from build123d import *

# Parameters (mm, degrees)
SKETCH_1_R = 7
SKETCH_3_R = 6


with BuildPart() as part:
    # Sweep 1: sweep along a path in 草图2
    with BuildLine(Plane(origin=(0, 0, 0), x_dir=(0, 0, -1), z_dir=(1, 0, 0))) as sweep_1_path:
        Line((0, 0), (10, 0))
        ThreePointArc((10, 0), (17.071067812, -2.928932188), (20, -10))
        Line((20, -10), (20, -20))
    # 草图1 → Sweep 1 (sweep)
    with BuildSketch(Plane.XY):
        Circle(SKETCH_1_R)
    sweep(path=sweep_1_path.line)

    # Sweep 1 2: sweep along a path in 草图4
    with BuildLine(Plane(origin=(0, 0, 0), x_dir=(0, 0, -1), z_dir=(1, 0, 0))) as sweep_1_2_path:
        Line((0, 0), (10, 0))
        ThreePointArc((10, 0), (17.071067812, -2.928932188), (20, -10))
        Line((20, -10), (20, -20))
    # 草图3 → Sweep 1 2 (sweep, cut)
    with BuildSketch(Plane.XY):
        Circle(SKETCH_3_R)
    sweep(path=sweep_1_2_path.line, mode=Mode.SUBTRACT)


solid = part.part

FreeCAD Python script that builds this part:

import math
import FreeCAD as App
import Part
import Sketcher

doc = App.newDocument("Part")
params = doc.addObject("Spreadsheet::Sheet", "Params")
for row, (alias, value) in enumerate([
    ("sketch1_diameter", "14 mm"),
    ("sketch2_radius", "10 mm"),
    ("sketch2_width", "10 mm"),
    ("sketch3_diameter", "12 mm"),
    ("sketch4_radius", "10 mm"),
    ("sketch4_width", "10 mm"),
], start=1):
    params.set(f"A{row}", alias)
    params.set(f"B{row}", "=" + value)
    params.setAlias(f"B{row}", alias)

body = doc.addObject("PartDesign::Body", "Body")

# Sketch on XY plane
sketch1 = doc.addObject("Sketcher::SketchObject", "Sketch")
body.addObject(sketch1)
sketch1.AttachmentSupport = (doc.XY_Plane, [""])
sketch1.MapMode = "FlatFace"
sketch1.addGeometry(Part.Circle(App.Vector(0, 0, 0), App.Vector(0, 0, 1), 7), False)
sketch1.addConstraint(Sketcher.Constraint("Coincident", 0, 3, -1, 1))
sketch1.addConstraint(Sketcher.Constraint("Diameter", 0, 14.0))
sketch1.setExpression("Constraints[1]", "Params.sketch1_diameter")

# Sketch on YZ plane
sketch2 = doc.addObject("Sketcher::SketchObject", "Sketch001")
body.addObject(sketch2)
sketch2.AttachmentSupport = (doc.YZ_Plane, [""])
sketch2.MapMode = "FlatFace"
sketch2.addGeometry(Part.LineSegment(App.Vector(0, 0, 0), App.Vector(0, -10, 0)), False)
sketch2.addGeometry(Part.ArcOfCircle(Part.Circle(App.Vector(-10, -10, 0), App.Vector(0, 0, 1), 10), math.radians(-90), math.radians(0)), False)
sketch2.addGeometry(Part.LineSegment(App.Vector(-10, -20, 0), App.Vector(-20, -20, 0)), False)
sketch2.addConstraint(Sketcher.Constraint("Tangent", 0, 2, 1, 2))
sketch2.addConstraint(Sketcher.Constraint("Tangent", 1, 1, 2, 1))
sketch2.addConstraint(Sketcher.Constraint("Vertical", 0))
sketch2.addConstraint(Sketcher.Constraint("Horizontal", 2))
sketch2.addConstraint(Sketcher.Constraint("Coincident", 0, 1, -1, 1))
sketch2.addConstraint(Sketcher.Constraint("Equal", 2, 0))
sketch2.addConstraint(Sketcher.Constraint("Radius", 1, 10.0))
sketch2.addConstraint(Sketcher.Constraint("DistanceX", 2, 2, 2, 1, 10.0))
sketch2.setExpression("Constraints[6]", "Params.sketch2_radius")
sketch2.setExpression("Constraints[7]", "Params.sketch2_width")
doc.recompute()

additivepipe = doc.addObject("PartDesign::AdditivePipe", "AdditivePipe")
body.addObject(additivepipe)
additivepipe.Profile = sketch1
additivepipe.Spine = (sketch2, ["Edge1", "Edge2", "Edge3"])

# Sketch on XY plane
sketch3 = doc.addObject("Sketcher::SketchObject", "Sketch002")
body.addObject(sketch3)
sketch3.AttachmentSupport = (doc.XY_Plane, [""])
sketch3.MapMode = "FlatFace"
sketch3.addGeometry(Part.Circle(App.Vector(0, 0, 0), App.Vector(0, 0, 1), 6), False)
sketch3.addConstraint(Sketcher.Constraint("Coincident", 0, 3, -1, 1))
sketch3.addConstraint(Sketcher.Constraint("Diameter", 0, 12.0))
sketch3.setExpression("Constraints[1]", "Params.sketch3_diameter")

# Sketch on YZ plane
sketch4 = doc.addObject("Sketcher::SketchObject", "Sketch003")
body.addObject(sketch4)
sketch4.AttachmentSupport = (doc.YZ_Plane, [""])
sketch4.MapMode = "FlatFace"
sketch4.addGeometry(Part.LineSegment(App.Vector(0, 0, 0), App.Vector(0, -10, 0)), False)
sketch4.addGeometry(Part.ArcOfCircle(Part.Circle(App.Vector(-10, -10, 0), App.Vector(0, 0, 1), 10), math.radians(-90), math.radians(0)), False)
sketch4.addGeometry(Part.LineSegment(App.Vector(-10, -20, 0), App.Vector(-20, -20, 0)), False)
sketch4.addConstraint(Sketcher.Constraint("Tangent", 0, 2, 1, 2))
sketch4.addConstraint(Sketcher.Constraint("Tangent", 1, 1, 2, 1))
sketch4.addConstraint(Sketcher.Constraint("Vertical", 0))
sketch4.addConstraint(Sketcher.Constraint("Horizontal", 2))
sketch4.addConstraint(Sketcher.Constraint("Coincident", 0, 1, -1, 1))
sketch4.addConstraint(Sketcher.Constraint("Equal", 2, 0))
sketch4.addConstraint(Sketcher.Constraint("Radius", 1, 10.0))
sketch4.addConstraint(Sketcher.Constraint("DistanceX", 2, 2, 2, 1, 10.0))
sketch4.setExpression("Constraints[6]", "Params.sketch4_radius")
sketch4.setExpression("Constraints[7]", "Params.sketch4_width")
doc.recompute()

subtractivepipe = doc.addObject("PartDesign::SubtractivePipe", "SubtractivePipe")
body.addObject(subtractivepipe)
subtractivepipe.Profile = sketch3
subtractivepipe.Spine = (sketch4, ["Edge1", "Edge2", "Edge3"])

doc.recompute()
